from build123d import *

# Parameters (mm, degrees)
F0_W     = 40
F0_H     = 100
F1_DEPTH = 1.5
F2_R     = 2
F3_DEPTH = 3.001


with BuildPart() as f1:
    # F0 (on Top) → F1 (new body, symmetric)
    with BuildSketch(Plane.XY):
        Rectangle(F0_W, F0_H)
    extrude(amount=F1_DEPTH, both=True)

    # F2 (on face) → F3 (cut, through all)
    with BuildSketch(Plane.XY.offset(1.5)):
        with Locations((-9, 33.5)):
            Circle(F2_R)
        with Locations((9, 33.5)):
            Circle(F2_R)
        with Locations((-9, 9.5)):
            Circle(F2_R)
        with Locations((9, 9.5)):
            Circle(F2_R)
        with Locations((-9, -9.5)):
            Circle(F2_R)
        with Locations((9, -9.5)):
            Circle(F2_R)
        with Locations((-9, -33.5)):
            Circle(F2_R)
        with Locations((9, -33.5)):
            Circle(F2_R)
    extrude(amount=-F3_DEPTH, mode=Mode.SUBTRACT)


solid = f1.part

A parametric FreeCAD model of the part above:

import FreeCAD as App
import Part
import Sketcher

V = App.Vector


def add_polygon(sketch, points):
    """Adds a closed chain of lines whose ends are joined by coincident constraints."""
    first, n = sketch.GeometryCount, len(points)
    for a, b in zip(points, points[1:] + points[:1]):
        sketch.addGeometry(Part.LineSegment(App.Vector(*a, 0), App.Vector(*b, 0)), False)
    for i in range(n):
        sketch.addConstraint(Sketcher.Constraint("Coincident", first + i, 2, first + (i + 1) % n, 1))

doc = App.newDocument("Part")
body = doc.addObject("PartDesign::Body", "Body")

sketch1 = body.newObject("Sketcher::SketchObject", "Sketch")
sketch1.AttachmentSupport = (doc.getObject("XY_Plane"), [""])
sketch1.MapMode = "FlatFace"
add_polygon(sketch1, [(-20, 50), (-20, -50), (20, -50), (20, 50)])
sketch1.addConstraint([
    Sketcher.Constraint("Vertical", 0),
    Sketcher.Constraint("Horizontal", 1),
    Sketcher.Constraint("Vertical", 2),
    Sketcher.Constraint("Horizontal", 3),
    Sketcher.Constraint("Symmetric", 0, 2, 2, 2, -1, 1),
    Sketcher.Constraint("DistanceX", 1, 1, 1, 2, 40.0),
    Sketcher.Constraint("DistanceY", 0, 2, 0, 1, 100.0),
])
pad1 = body.newObject("PartDesign::Pad", "Pad")
pad1.Profile = sketch1
pad1.Length = 3
pad1.Midplane = True

sketch2 = body.newObject("Sketcher::SketchObject", "Sketch001")
sketch2.AttachmentSupport = (doc.getObject("XY_Plane"), [""])
sketch2.MapMode = "FlatFace"
sketch2.AttachmentOffset = App.Placement(V(0, 0, 1.5), App.Rotation())
sketch2.addGeometry([
    Part.Circle(V(-9, 33.5, 0), V(0, 0, 1), 2),
    Part.Circle(V(9, 33.5, 0), V(0, 0, 1), 2),
    Part.Circle(V(-9, 9.5, 0), V(0, 0, 1), 2),
    Part.Circle(V(9, 9.5, 0), V(0, 0, 1), 2),
    Part.Circle(V(-9, -9.5, 0), V(0, 0, 1), 2),
    Part.Circle(V(9, -9.5, 0), V(0, 0, 1), 2),
    Part.Circle(V(-9, -33.5, 0), V(0, 0, 1), 2),
    Part.Circle(V(9, -33.5, 0), V(0, 0, 1), 2),
], False)
sketch2.addConstraint([
    Sketcher.Constraint("Equal", 0, 1),
    Sketcher.Constraint("Equal", 1, 2),
    Sketcher.Constraint("Equal", 2, 3),
    Sketcher.Constraint("Equal", 3, 4),
    Sketcher.Constraint("Equal", 4, 5),
    Sketcher.Constraint("Equal", 5, 6),
    Sketcher.Constraint("Equal", 6, 7),
    Sketcher.Constraint("Symmetric", 3, 3, 4, 3, -1, 1),
    Sketcher.Constraint("Symmetric", 2, 3, 5, 3, -1, 1),
    Sketcher.Constraint("Symmetric", 1, 3, 6, 3, -1, 1),
    Sketcher.Constraint("Symmetric", 0, 3, 7, 3, -1, 1),
    Sketcher.Constraint("Symmetric", 0, 3, 1, 3, -2),
    Sketcher.Constraint("Symmetric", 2, 3, 3, 3, -2),
    Sketcher.Constraint("Vertical", 0, 3, 2, 3),
    Sketcher.Constraint("Diameter", 0, 4.0),
    Sketcher.Constraint("DistanceX", 0, 3, -1, 1, 9.0),
    Sketcher.Constraint("DistanceY", 2, 3, 0, 3, 24.0),
    Sketcher.Constraint("DistanceY", 4, 3, 2, 3, 19.0),
])
pocket1 = body.newObject("PartDesign::Pocket", "Pocket")
pocket1.Profile = sketch2
pocket1.Type = "ThroughAll"

doc.recompute()
